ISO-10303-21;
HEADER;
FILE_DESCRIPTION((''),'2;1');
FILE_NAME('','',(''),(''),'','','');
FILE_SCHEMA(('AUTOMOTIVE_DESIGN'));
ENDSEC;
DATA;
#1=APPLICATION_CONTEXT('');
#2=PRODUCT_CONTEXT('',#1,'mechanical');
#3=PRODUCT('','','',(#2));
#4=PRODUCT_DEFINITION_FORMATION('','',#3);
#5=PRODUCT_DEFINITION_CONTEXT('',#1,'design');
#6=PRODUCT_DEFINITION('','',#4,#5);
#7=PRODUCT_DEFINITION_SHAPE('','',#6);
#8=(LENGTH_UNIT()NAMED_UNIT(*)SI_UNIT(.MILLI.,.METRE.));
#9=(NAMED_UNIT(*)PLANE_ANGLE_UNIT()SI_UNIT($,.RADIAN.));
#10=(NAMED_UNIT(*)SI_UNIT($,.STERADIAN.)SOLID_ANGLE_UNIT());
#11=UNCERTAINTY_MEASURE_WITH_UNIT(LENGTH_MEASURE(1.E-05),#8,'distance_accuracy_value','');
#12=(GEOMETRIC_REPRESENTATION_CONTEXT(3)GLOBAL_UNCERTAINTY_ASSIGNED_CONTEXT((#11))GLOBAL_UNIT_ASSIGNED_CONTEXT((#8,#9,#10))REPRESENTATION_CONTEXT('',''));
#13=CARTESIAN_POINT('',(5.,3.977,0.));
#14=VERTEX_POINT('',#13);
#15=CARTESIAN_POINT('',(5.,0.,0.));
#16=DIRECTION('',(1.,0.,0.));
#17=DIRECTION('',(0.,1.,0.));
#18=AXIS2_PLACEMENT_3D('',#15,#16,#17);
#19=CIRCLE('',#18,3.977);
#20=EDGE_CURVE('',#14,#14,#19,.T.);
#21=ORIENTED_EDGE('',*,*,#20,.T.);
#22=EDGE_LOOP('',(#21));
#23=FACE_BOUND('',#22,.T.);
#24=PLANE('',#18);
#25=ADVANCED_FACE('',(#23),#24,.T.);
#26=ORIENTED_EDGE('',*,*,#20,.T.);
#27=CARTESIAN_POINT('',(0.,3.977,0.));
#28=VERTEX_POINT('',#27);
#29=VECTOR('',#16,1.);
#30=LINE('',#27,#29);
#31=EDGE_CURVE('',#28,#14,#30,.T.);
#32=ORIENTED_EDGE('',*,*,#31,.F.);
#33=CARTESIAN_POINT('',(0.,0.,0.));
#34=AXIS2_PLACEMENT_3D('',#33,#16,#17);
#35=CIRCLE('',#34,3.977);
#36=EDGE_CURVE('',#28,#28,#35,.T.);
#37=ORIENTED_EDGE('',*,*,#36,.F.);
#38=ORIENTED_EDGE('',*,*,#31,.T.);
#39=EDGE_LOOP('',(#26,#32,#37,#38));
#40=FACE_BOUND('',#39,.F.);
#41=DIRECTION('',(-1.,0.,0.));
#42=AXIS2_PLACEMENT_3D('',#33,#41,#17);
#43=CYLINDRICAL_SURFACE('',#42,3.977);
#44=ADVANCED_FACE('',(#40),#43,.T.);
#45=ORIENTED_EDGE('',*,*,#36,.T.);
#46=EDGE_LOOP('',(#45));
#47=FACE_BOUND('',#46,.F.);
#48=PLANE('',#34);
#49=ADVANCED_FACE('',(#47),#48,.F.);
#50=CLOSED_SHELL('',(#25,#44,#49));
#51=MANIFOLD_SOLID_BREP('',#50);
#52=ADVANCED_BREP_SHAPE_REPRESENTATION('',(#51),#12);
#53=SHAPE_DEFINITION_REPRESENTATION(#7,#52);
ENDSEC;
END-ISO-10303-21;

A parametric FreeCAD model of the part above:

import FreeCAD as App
import Part
import Sketcher

V = App.Vector
Q = App.Units.Quantity

doc = App.newDocument("Part")
params = doc.addObject("Spreadsheet::Sheet", "Params")
for row, (alias, value) in enumerate([
    ("pad1_length", "5 mm"),
], start=1):
    params.set(f"A{row}", alias)
    params.set(f"B{row}", "=" + value)
    params.setAlias(f"B{row}", alias)

body = doc.addObject("PartDesign::Body", "Body")

sketch1 = body.newObject("Sketcher::SketchObject", "Sketch")
sketch1.AttachmentSupport = (doc.getObject("YZ_Plane"), [""])
sketch1.MapMode = "FlatFace"
sketch1.addGeometry(Part.Circle(V(0, 0, 0), V(0, 0, 1), 4), False)
sketch1.addConstraint([
    Sketcher.Constraint("Coincident", 0, 3, -1, 1),
    Sketcher.Constraint("Diameter", 0, Q("7.954 mm")),
])
pad1 = body.newObject("PartDesign::Pad", "Pad")
pad1.Profile = sketch1
pad1.setExpression("Length", "Params.pad1_length")

doc.recompute()
